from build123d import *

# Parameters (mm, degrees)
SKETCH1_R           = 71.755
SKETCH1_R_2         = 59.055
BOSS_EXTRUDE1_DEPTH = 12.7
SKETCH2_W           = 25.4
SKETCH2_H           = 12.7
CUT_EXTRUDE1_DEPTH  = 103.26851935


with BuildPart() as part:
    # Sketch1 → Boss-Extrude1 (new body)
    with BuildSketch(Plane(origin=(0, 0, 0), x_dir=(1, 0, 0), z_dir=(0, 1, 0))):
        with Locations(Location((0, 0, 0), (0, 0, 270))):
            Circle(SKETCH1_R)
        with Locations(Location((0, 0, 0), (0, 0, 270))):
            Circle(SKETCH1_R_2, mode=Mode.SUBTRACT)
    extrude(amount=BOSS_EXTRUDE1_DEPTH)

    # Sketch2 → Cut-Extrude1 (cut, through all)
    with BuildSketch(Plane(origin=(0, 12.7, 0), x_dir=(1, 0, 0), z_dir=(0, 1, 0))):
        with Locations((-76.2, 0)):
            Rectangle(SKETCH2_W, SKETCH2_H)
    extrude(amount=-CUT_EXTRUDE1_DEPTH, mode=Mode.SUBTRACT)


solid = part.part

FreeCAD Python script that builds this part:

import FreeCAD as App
import Part
import Sketcher
from FreeCAD import Vector
Q = App.Units.Quantity


def add_polygon(sketch, points):
    """Adds a closed chain of lines whose ends are joined by coincident constraints."""
    first, n = sketch.GeometryCount, len(points)
    for a, b in zip(points, points[1:] + points[:1]):
        sketch.addGeometry(Part.LineSegment(App.Vector(*a, 0), App.Vector(*b, 0)), False)
    for i in range(n):
        sketch.addConstraint(Sketcher.Constraint("Coincident", first + i, 2, first + (i + 1) % n, 1))

doc = App.newDocument("Part")
body = doc.addObject("PartDesign::Body", "Body")

# Sketch on XZ plane
sketch1 = body.newObject("Sketcher::SketchObject", "Sketch")
sketch1.AttachmentSupport = (doc.getObject("XZ_Plane"), [""])
sketch1.MapMode = "FlatFace"
sketch1.addGeometry(Part.Circle(Vector(0, 0, 0), Vector(0, 0, 1), 72), False)
sketch1.addGeometry(Part.Circle(Vector(0, 0, 0), Vector(0, 0, 1), 59), False)
sketch1.addConstraint(Sketcher.Constraint("Coincident", 0, 3, -1, 1))
sketch1.addConstraint(Sketcher.Constraint("Coincident", 1, 3, -1, 1))
sketch1.addConstraint(Sketcher.Constraint("Diameter", 0, Q("5.65 in")))
sketch1.addConstraint(Sketcher.Constraint("Diameter", 1, Q("4.65 in")))
pad1 = body.newObject("PartDesign::Pad", "Pad")
pad1.Profile = sketch1
pad1.Length = Q("0.5 in")
pad1.Reversed = True

# Sketch on XZ plane
sketch2 = body.newObject("Sketcher::SketchObject", "Sketch001")
sketch2.AttachmentSupport = (doc.getObject("XZ_Plane"), [""])
sketch2.MapMode = "FlatFace"
sketch2.AttachmentOffset = App.Placement(Vector(0, 0, -0.5 * 25.4), App.Rotation())
add_polygon(sketch2, [(-89, -6), (-89, 6), (-64, 6), (-64, -6)])  # lines 0-3
sketch2.addConstraint(Sketcher.Constraint("Vertical", 0))
sketch2.addConstraint(Sketcher.Constraint("Horizontal", 1))
sketch2.addConstraint(Sketcher.Constraint("Vertical", 2))
sketch2.addConstraint(Sketcher.Constraint("Horizontal", 3))
sketch2.addConstraint(Sketcher.Constraint("DistanceX", 1, 1, 1, 2, Q("1 in")))
sketch2.addConstraint(Sketcher.Constraint("DistanceY", 0, 1, 0, 2, Q("0.5 in")))
sketch2.addConstraint(Sketcher.Constraint("DistanceX", 0, 2, -1, 1, Q("3.5 in")))
sketch2.addConstraint(Sketcher.Constraint("DistanceY", -1, 1, 0, 2, Q("0.25 in")))
pocket1 = body.newObject("PartDesign::Pocket", "Pocket")
pocket1.Profile = sketch2
pocket1.Type = "ThroughAll"
pocket1.Reversed = True

doc.recompute()
